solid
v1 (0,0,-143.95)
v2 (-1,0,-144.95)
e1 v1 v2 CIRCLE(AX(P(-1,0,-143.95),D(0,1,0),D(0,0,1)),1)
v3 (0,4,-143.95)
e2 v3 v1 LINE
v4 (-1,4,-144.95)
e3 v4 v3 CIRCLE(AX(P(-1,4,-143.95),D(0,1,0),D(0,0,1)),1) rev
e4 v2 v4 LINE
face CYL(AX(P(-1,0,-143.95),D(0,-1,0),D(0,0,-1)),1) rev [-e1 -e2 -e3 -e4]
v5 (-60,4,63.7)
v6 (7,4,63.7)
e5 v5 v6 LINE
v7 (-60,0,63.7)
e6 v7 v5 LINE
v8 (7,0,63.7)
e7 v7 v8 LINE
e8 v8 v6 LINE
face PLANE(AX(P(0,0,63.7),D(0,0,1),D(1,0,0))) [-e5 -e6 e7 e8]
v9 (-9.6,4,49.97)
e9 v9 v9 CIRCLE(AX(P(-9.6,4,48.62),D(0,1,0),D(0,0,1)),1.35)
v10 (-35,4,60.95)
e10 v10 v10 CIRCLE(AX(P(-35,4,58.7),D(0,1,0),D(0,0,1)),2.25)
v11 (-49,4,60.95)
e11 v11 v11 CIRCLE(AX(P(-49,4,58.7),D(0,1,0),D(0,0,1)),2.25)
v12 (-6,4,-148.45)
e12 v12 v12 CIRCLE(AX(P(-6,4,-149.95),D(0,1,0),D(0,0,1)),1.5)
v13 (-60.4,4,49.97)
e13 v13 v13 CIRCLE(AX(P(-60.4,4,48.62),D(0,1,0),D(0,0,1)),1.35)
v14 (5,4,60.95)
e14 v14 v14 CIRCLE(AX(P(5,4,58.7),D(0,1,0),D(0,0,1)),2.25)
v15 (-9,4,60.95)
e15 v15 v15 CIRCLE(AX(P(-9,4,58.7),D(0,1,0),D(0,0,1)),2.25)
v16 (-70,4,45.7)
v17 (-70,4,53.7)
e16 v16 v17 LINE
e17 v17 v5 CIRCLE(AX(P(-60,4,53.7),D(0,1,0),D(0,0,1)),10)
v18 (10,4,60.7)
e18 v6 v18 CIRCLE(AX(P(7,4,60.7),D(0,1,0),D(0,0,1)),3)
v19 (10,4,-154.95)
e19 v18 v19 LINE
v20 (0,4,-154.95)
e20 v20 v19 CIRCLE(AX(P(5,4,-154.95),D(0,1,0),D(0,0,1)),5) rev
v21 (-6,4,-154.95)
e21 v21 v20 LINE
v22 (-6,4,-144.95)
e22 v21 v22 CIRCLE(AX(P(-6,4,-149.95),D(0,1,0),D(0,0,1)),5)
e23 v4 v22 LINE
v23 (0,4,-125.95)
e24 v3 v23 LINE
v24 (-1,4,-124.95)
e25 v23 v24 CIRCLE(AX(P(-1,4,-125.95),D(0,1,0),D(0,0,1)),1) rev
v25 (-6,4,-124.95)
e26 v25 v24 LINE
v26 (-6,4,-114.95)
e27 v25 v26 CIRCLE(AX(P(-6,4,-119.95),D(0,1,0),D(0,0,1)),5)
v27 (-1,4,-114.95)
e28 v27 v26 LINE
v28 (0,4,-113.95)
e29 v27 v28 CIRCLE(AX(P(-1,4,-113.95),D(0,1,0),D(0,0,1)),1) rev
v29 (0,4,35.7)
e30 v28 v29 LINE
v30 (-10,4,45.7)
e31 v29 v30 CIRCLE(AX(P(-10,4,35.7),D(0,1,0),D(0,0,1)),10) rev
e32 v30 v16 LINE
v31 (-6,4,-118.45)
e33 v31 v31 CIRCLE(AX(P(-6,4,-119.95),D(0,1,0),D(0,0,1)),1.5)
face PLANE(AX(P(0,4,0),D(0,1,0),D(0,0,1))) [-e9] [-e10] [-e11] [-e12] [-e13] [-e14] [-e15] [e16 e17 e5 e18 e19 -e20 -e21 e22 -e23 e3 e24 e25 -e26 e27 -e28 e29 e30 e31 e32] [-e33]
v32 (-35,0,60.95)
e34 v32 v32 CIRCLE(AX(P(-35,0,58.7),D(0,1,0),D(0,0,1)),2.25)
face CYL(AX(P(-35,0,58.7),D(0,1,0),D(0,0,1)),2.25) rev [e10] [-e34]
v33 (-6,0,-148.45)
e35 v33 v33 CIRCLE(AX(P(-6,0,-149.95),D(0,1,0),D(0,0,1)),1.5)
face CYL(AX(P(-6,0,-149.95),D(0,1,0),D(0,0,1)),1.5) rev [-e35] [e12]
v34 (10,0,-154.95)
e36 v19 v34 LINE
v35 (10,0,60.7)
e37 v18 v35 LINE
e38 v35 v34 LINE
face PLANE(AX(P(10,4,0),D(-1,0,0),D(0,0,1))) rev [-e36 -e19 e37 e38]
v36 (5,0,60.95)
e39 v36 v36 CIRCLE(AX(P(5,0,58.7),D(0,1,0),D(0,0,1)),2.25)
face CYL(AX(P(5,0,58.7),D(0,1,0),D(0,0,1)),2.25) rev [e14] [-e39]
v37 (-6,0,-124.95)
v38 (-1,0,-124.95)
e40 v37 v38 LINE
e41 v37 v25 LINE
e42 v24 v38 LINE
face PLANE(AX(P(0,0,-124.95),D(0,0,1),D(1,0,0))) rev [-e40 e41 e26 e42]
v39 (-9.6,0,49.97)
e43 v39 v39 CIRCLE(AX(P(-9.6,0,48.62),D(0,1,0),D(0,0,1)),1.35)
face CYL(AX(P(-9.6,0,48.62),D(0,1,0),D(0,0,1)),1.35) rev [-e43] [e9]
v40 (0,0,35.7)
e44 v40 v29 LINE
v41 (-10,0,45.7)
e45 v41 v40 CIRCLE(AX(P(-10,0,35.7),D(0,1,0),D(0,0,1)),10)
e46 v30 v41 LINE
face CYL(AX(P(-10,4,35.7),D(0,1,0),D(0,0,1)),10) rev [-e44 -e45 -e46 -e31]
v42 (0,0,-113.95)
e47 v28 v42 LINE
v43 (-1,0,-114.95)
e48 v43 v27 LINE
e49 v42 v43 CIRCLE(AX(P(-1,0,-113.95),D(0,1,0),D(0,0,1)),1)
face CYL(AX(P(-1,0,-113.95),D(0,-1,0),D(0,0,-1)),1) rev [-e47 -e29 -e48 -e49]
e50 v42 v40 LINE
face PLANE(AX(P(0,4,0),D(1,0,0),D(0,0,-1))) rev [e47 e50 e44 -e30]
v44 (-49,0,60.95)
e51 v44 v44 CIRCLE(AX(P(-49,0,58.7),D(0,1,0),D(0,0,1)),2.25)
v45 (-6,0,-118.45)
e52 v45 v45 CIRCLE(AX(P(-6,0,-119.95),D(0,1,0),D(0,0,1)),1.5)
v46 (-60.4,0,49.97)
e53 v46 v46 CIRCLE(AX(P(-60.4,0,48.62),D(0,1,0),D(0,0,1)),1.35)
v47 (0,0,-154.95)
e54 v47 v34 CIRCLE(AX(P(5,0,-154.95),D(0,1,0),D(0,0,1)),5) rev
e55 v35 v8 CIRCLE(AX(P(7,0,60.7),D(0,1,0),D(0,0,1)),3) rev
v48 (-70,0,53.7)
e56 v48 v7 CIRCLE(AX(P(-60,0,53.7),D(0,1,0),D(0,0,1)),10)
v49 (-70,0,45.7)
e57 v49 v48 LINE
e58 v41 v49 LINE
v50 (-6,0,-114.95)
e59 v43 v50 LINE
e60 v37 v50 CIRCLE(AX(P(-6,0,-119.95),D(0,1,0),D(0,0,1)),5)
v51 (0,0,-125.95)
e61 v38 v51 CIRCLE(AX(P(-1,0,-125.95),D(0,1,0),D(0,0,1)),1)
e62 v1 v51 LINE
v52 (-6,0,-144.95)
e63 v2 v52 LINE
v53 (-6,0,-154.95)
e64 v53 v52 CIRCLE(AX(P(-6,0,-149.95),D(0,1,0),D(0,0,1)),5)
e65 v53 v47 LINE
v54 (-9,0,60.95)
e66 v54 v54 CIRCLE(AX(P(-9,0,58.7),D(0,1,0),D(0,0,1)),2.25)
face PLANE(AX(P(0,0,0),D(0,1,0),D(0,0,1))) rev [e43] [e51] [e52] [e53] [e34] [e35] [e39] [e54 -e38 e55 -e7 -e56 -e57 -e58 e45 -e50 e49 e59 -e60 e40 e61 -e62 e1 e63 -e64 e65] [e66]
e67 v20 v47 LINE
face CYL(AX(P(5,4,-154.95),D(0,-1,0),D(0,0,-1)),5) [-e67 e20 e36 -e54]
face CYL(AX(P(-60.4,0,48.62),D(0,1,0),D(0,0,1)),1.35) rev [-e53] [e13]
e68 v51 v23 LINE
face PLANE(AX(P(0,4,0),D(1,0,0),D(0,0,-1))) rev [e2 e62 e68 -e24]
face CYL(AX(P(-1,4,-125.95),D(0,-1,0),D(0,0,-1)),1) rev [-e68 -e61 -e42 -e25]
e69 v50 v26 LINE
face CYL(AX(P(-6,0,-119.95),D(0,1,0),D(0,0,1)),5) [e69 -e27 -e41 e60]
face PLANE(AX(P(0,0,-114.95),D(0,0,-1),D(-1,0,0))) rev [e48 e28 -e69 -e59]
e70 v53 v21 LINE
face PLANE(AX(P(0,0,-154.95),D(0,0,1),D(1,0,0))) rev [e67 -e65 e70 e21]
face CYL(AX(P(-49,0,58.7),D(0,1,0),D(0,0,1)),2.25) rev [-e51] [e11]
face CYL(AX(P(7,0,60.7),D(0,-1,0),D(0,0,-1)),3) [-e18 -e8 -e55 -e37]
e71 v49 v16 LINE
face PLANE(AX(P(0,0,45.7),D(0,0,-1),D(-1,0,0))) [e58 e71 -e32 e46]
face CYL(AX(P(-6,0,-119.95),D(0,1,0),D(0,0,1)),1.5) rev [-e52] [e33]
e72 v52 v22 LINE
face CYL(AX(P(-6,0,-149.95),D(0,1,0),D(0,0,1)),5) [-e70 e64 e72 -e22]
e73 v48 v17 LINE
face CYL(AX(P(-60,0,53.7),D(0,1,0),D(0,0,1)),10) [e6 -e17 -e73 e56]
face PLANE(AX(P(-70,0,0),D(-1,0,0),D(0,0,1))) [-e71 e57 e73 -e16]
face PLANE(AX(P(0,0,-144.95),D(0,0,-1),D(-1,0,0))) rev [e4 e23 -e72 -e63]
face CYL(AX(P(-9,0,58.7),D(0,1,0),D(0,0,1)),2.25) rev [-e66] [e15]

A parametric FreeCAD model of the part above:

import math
import FreeCAD as App
import Part
import Sketcher
Q = App.Units.Quantity


def edges_at(feature, points):
    """Names of the edges that pass closest to the given points."""
    edges = feature.Shape.Edges
    near = lambda p: min(range(len(edges)), key=lambda i: edges[i].distToShape(Part.Vertex(*p))[0])
    return sorted({f"Edge{near(p) + 1}" for p in points})

doc = App.newDocument("Part")
body = doc.addObject("PartDesign::Body", "Body")

# Sketch on XZ plane
sketch1 = body.newObject("Sketcher::SketchObject", "Sketch")
sketch1.AttachmentSupport = (doc.getObject("XZ_Plane"), [""])
sketch1.MapMode = "FlatFace"
sketch1.addGeometry([
    Part.LineSegment(App.Vector(0, -154.95, 0), App.Vector(0, 0, 0)),
    Part.LineSegment(App.Vector(0, 0, 0), App.Vector(10, 0, 0)),
    Part.LineSegment(App.Vector(10, 0, 0), App.Vector(10, -154.95, 0)),
    Part.ArcOfCircle(Part.Circle(App.Vector(5, -154.95, 0), App.Vector(0, 0, 1), 5), math.radians(180), math.radians(360)),
], False)
sketch1.addConstraint([
    Sketcher.Constraint("Coincident", 0, 2, 1, 1),
    Sketcher.Constraint("Coincident", 1, 2, 2, 1),
    Sketcher.Constraint("Tangent", 2, 2, 3, 2),
    Sketcher.Constraint("Tangent", 3, 1, 0, 1),
    Sketcher.Constraint("Vertical", 0),
    Sketcher.Constraint("Horizontal", 1),
    Sketcher.Constraint("Vertical", 2),
    Sketcher.Constraint("Coincident", 0, 2, -1, 1),
    Sketcher.Constraint("Radius", 3, Q("5 mm")),
    Sketcher.Constraint("DistanceY", 0, 1, 0, 2, Q("154.95 mm")),
])
pad1 = body.newObject("PartDesign::Pad", "Pad")
pad1.Profile = sketch1
pad1.Length = 4
pad1.Reversed = True

# Sketch on XZ plane
sketch2 = body.newObject("Sketcher::SketchObject", "Sketch001")
sketch2.AttachmentSupport = (doc.getObject("XZ_Plane"), [""])
sketch2.MapMode = "FlatFace"
sketch2.AttachmentOffset = App.Placement(App.Vector(0, 0, -4), App.Rotation())
sketch2.addGeometry([
    Part.LineSegment(App.Vector(0, 0, 0), App.Vector(0, 45.7, 0)),  # 0
    Part.LineSegment(App.Vector(0, 45.7, 0), App.Vector(-70, 45.7, 0)),  # 1
    Part.LineSegment(App.Vector(-70, 45.7, 0), App.Vector(-70, 53.7, 0)),  # 2
    Part.ArcOfCircle(Part.Circle(App.Vector(-60, 53.7, 0), App.Vector(0, 0, 1), 10), math.radians(90), math.radians(180)),  # 3
    Part.LineSegment(App.Vector(-60, 63.7, 0), App.Vector(10, 63.7, 0)),  # 4
    Part.LineSegment(App.Vector(10, 63.7, 0), App.Vector(10, 0, 0)),  # 5
    Part.LineSegment(App.Vector(10, 0, 0), App.Vector(0, 0, 0)),  # 6
    Part.Circle(App.Vector(-49, 58.7, 0), App.Vector(0, 0, 1), 2.25),  # 7
    Part.Circle(App.Vector(-35, 58.7, 0), App.Vector(0, 0, 1), 2.25),  # 8
    Part.Circle(App.Vector(-9, 58.7, 0), App.Vector(0, 0, 1), 2.25),  # 9
    Part.Circle(App.Vector(5, 58.7, 0), App.Vector(0, 0, 1), 2.25),  # 10
    Part.Circle(App.Vector(-60.4, 48.62, 0), App.Vector(0, 0, 1), 1.35),  # 11
    Part.Circle(App.Vector(-9.6, 48.62, 0), App.Vector(0, 0, 1), 1.35),  # 12
], False)
sketch2.addConstraint([
    Sketcher.Constraint("Coincident", 0, 2, 1, 1),
    Sketcher.Constraint("Coincident", 1, 2, 2, 1),
    Sketcher.Constraint("Tangent", 2, 2, 3, 2),
    Sketcher.Constraint("Tangent", 3, 1, 4, 1),
    Sketcher.Constraint("Coincident", 4, 2, 5, 1),
    Sketcher.Constraint("Coincident", 5, 2, 6, 1),
    Sketcher.Constraint("Coincident", 6, 2, 0, 1),
    Sketcher.Constraint("Vertical", 0),
    Sketcher.Constraint("Horizontal", 1),
    Sketcher.Constraint("Vertical", 2),
    Sketcher.Constraint("Horizontal", 4),
    Sketcher.Constraint("Vertical", 5),
    Sketcher.Constraint("Horizontal", 6),
    Sketcher.Constraint("Coincident", 6, 2, -1, 1),
    Sketcher.Constraint("Equal", 7, 8),
    Sketcher.Constraint("Equal", 8, 9),
    Sketcher.Constraint("Equal", 9, 10),
    Sketcher.Constraint("Equal", 11, 12),
    Sketcher.Constraint("Horizontal", 7, 3, 8, 3),
    Sketcher.Constraint("Horizontal", 8, 3, 9, 3),
    Sketcher.Constraint("Horizontal", 9, 3, 10, 3),
    Sketcher.Constraint("Horizontal", 11, 3, 12, 3),
    Sketcher.Constraint("Equal", 1, 4),
    Sketcher.Constraint("Radius", 3, Q("10 mm")),
    Sketcher.Constraint("Diameter", 7, Q("4.5 mm")),
    Sketcher.Constraint("Diameter", 11, Q("2.7 mm")),
    Sketcher.Constraint("DistanceX", 1, 2, 1, 1, Q("70 mm")),
    Sketcher.Constraint("DistanceY", 2, 1, 2, 2, Q("8 mm")),
    Sketcher.Constraint("DistanceY", 0, 1, 0, 2, Q("45.7 mm")),
    Sketcher.Constraint("DistanceX", 7, 3, -1, 1, Q("49 mm")),
    Sketcher.Constraint("DistanceX", 8, 3, -1, 1, Q("35 mm")),
    Sketcher.Constraint("DistanceX", 9, 3, -1, 1, Q("9 mm")),
    Sketcher.Constraint("DistanceX", -1, 1, 10, 3, Q("5 mm")),
    Sketcher.Constraint("DistanceY", 3, 3, 7, 3, Q("5 mm")),
    Sketcher.Constraint("DistanceX", 11, 3, -1, 1, Q("60.4 mm")),
    Sketcher.Constraint("DistanceX", 12, 3, -1, 1, Q("9.6 mm")),
    Sketcher.Constraint("DistanceY", -1, 1, 11, 3, Q("48.62 mm")),
])
pad2 = body.newObject("PartDesign::Pad", "Pad001")
pad2.Profile = sketch2
pad2.Length = 4
doc.recompute()

fillet = body.newObject("PartDesign::Fillet", "Fillet")
fillet.Base = (pad2, edges_at(pad2, [(10, 2, 63.7)]))
fillet.Radius = 3

# Sketch on XZ plane
sketch3 = body.newObject("Sketcher::SketchObject", "Sketch002")
sketch3.AttachmentSupport = (doc.getObject("XZ_Plane"), [""])
sketch3.MapMode = "FlatFace"
sketch3.AttachmentOffset = App.Placement(App.Vector(0, 0, -4), App.Rotation())
sketch3.addGeometry([
    Part.LineSegment(App.Vector(0, -154.95, 0), App.Vector(-6, -154.95, 0)),  # 0
    Part.ArcOfCircle(Part.Circle(App.Vector(-6, -149.95, 0), App.Vector(0, 0, 1), 5), math.radians(90), math.radians(270)),  # 1
    Part.LineSegment(App.Vector(-6, -144.95, 0), App.Vector(0, -144.95, 0)),  # 2
    Part.LineSegment(App.Vector(0, -144.95, 0), App.Vector(0, -154.95, 0)),  # 3
    Part.Circle(App.Vector(-6, -149.95, 0), App.Vector(0, 0, 1), 1.5),  # 4
    Part.LineSegment(App.Vector(0, -114.95, 0), App.Vector(0, -124.95, 0)),  # 5
    Part.LineSegment(App.Vector(0, -124.95, 0), App.Vector(-6, -124.95, 0)),  # 6
    Part.ArcOfCircle(Part.Circle(App.Vector(-6, -119.95, 0), App.Vector(0, 0, 1), 5), math.radians(90), math.radians(270)),  # 7
    Part.LineSegment(App.Vector(-6, -114.95, 0), App.Vector(0, -114.95, 0)),  # 8
    Part.Circle(App.Vector(-6, -119.95, 0), App.Vector(0, 0, 1), 1.5),  # 9
], False)
sketch3.addConstraint([
    Sketcher.Constraint("Tangent", 0, 2, 1, 2),
    Sketcher.Constraint("Tangent", 1, 1, 2, 1),
    Sketcher.Constraint("Coincident", 2, 2, 3, 1),
    Sketcher.Constraint("Coincident", 3, 2, 0, 1),
    Sketcher.Constraint("Coincident", 5, 2, 6, 1),
    Sketcher.Constraint("Tangent", 6, 2, 7, 2),
    Sketcher.Constraint("Tangent", 7, 1, 8, 1),
    Sketcher.Constraint("Coincident", 8, 2, 5, 1),
    Sketcher.Constraint("Horizontal", 0),
    Sketcher.Constraint("Horizontal", 2),
    Sketcher.Constraint("Vertical", 3),
    Sketcher.Constraint("Vertical", 5),
    Sketcher.Constraint("Horizontal", 6),
    Sketcher.Constraint("Horizontal", 8),
    Sketcher.Constraint("Coincident", 4, 3, 1, 3),
    Sketcher.Constraint("Coincident", 9, 3, 7, 3),
    Sketcher.Constraint("Equal", 1, 7),
    Sketcher.Constraint("Equal", 4, 9),
    Sketcher.Constraint("PointOnObject", 2, 2, -2),
    Sketcher.Constraint("PointOnObject", 5, 2, -2),
    Sketcher.Constraint("Vertical", 4, 3, 7, 3),
    Sketcher.Constraint("Diameter", 4, Q("3 mm")),
    Sketcher.Constraint("Radius", 1, Q("5 mm")),
    Sketcher.Constraint("DistanceX", 0, 2, 0, 1, Q("6 mm")),
    Sketcher.Constraint("DistanceY", 1, 3, 7, 3, Q("30 mm")),
    Sketcher.Constraint("DistanceY", 1, 3, -1, 1, Q("149.95 mm")),
])
pad3 = body.newObject("PartDesign::Pad", "Pad002")
pad3.Profile = sketch3
pad3.Length = 4
doc.recompute()

fillet2 = body.newObject("PartDesign::Fillet", "Fillet001")
fillet2.Base = (pad3, edges_at(pad3, [(0, 2, -144.95), (0, 2, -124.95), (0, 2, -114.95)]))
fillet2.Radius = 1
doc.recompute()

fillet3 = body.newObject("PartDesign::Fillet", "Fillet002")
fillet3.Base = (fillet2, edges_at(fillet2, [(0, 2, 45.7)]))
fillet3.Radius = 10

doc.recompute()
